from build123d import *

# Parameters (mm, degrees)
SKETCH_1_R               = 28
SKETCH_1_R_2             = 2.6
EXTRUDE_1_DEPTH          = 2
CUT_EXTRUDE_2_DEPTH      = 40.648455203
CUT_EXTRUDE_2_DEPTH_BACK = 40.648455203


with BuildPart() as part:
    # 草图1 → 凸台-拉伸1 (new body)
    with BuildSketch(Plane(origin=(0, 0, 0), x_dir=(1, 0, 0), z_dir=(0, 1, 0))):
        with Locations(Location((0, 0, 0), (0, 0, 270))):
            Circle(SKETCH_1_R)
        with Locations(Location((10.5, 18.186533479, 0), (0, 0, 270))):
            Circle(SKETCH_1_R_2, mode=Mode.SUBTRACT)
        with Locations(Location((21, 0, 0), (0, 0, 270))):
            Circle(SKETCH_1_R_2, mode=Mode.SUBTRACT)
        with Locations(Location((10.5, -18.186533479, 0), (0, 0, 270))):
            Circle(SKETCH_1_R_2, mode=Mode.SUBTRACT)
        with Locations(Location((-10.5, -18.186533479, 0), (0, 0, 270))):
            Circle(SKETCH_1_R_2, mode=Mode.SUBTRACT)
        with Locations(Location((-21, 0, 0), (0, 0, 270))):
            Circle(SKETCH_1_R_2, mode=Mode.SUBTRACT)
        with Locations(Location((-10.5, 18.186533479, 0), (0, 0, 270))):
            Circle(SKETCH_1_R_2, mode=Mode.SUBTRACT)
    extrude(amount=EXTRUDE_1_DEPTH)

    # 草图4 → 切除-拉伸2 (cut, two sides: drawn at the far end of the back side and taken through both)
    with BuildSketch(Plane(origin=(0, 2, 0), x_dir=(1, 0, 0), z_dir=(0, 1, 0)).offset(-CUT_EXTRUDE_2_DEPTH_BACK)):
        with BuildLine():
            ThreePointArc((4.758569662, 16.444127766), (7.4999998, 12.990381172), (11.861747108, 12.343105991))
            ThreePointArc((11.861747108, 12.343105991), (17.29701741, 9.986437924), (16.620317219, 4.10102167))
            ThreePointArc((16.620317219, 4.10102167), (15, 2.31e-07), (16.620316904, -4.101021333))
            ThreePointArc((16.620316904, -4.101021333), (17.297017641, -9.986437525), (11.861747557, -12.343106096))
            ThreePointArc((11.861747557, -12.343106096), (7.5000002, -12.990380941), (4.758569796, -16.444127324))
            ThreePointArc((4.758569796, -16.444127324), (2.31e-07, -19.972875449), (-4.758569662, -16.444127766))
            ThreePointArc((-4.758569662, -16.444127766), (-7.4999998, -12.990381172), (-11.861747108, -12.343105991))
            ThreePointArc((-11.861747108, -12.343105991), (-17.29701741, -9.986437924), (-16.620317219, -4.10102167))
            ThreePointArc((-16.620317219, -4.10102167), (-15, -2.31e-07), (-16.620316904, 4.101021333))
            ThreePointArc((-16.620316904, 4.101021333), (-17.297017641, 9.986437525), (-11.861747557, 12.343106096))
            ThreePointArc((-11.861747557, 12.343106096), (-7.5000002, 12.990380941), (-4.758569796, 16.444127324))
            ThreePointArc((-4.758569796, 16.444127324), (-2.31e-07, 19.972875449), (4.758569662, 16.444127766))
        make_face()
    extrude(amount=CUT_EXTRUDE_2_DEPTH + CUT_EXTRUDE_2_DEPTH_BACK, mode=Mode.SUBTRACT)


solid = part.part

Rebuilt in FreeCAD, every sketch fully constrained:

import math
import FreeCAD as App
import Part
import Sketcher
Q = App.Units.Quantity

doc = App.newDocument("Part")
body = doc.addObject("PartDesign::Body", "Body")

sketch1 = body.newObject("Sketcher::SketchObject", "Sketch")
sketch1.AttachmentSupport = (doc.getObject("XZ_Plane"), [""])
sketch1.MapMode = "FlatFace"
sketch1.addGeometry([
    Part.Circle(App.Vector(0, 0, 0), App.Vector(0, 0, 1), 28),
    Part.Circle(App.Vector(-10.5, -18.2, 0), App.Vector(0, 0, 1), 2.6),
    Part.Circle(App.Vector(-21, 0, 0), App.Vector(0, 0, 1), 2.6),
    Part.Circle(App.Vector(-10.5, 18.2, 0), App.Vector(0, 0, 1), 2.6),
    Part.Circle(App.Vector(10.5, -18.2, 0), App.Vector(0, 0, 1), 2.6),
    Part.Circle(App.Vector(21, 0, 0), App.Vector(0, 0, 1), 2.6),
    Part.Circle(App.Vector(10.5, 18.2, 0), App.Vector(0, 0, 1), 2.6),
], False)
sketch1.addConstraint([
    Sketcher.Constraint("Coincident", 0, 3, -1, 1),
    Sketcher.Constraint("Equal", 1, 2),
    Sketcher.Constraint("Equal", 2, 3),
    Sketcher.Constraint("Equal", 3, 4),
    Sketcher.Constraint("Equal", 4, 5),
    Sketcher.Constraint("Equal", 5, 6),
    Sketcher.Constraint("Symmetric", 3, 3, 4, 3, -1, 1),
    Sketcher.Constraint("Symmetric", 2, 3, 5, 3, -1, 1),
    Sketcher.Constraint("Symmetric", 1, 3, 6, 3, -1, 1),
    Sketcher.Constraint("Symmetric", 1, 3, 4, 3, -2),
    Sketcher.Constraint("PointOnObject", 2, 3, -1),
    Sketcher.Constraint("Diameter", 0, Q("56 mm")),
    Sketcher.Constraint("Diameter", 1, Q("5.2 mm")),
    Sketcher.Constraint("DistanceX", 2, 3, -1, 1, Q("21 mm")),
    Sketcher.Constraint("DistanceX", 1, 3, 4, 3, Q("21 mm")),
    Sketcher.Constraint("DistanceY", 1, 3, -1, 1, Q("18.186533 mm")),
])
pad1 = body.newObject("PartDesign::Pad", "Pad")
pad1.Profile = sketch1
pad1.Length = 2
pad1.Reversed = True

sketch2 = body.newObject("Sketcher::SketchObject", "Sketch001")
sketch2.AttachmentSupport = (doc.getObject("XZ_Plane"), [""])
sketch2.MapMode = "FlatFace"
sketch2.AttachmentOffset = App.Placement(App.Vector(0, 0, -2), App.Rotation())
sketch2.addGeometry([
    Part.ArcOfCircle(Part.Circle(App.Vector(10.5, -18.2, 0), App.Vector(0, 0, 1), 6), math.radians(77), math.radians(163)),
    Part.ArcOfCircle(Part.Circle(App.Vector(0, -15, 0), App.Vector(0, 0, 1), 5), math.radians(-163), math.radians(-17)),
    Part.ArcOfCircle(Part.Circle(App.Vector(-10.5, -18.2, 0), App.Vector(0, 0, 1), 6), math.radians(17), math.radians(103)),
    Part.ArcOfCircle(Part.Circle(App.Vector(-13, -7.5, 0), App.Vector(0, 0, 1), 5), math.radians(137), math.radians(283)),
    Part.ArcOfCircle(Part.Circle(App.Vector(-21, 0, 0), App.Vector(0, 0, 1), 6), math.radians(-43), math.radians(43)),
    Part.ArcOfCircle(Part.Circle(App.Vector(-13, 7.5, 0), App.Vector(0, 0, 1), 5), math.radians(77), math.radians(223)),
    Part.ArcOfCircle(Part.Circle(App.Vector(-10.5, 18.2, 0), App.Vector(0, 0, 1), 6), math.radians(-103), math.radians(-17)),
    Part.ArcOfCircle(Part.Circle(App.Vector(0, 15, 0), App.Vector(0, 0, 1), 5), math.radians(17), math.radians(163)),
    Part.ArcOfCircle(Part.Circle(App.Vector(10.5, 18.2, 0), App.Vector(0, 0, 1), 6), math.radians(-163), math.radians(-77)),
    Part.ArcOfCircle(Part.Circle(App.Vector(13, 7.5, 0), App.Vector(0, 0, 1), 5), math.radians(-43), math.radians(103)),
    Part.ArcOfCircle(Part.Circle(App.Vector(21, 0, 0), App.Vector(0, 0, 1), 6), math.radians(137), math.radians(223)),
    Part.ArcOfCircle(Part.Circle(App.Vector(13, -7.5, 0), App.Vector(0, 0, 1), 5), math.radians(-103), math.radians(43)),
], False)
sketch2.addConstraint([
    Sketcher.Constraint("Tangent", 0, 2, 1, 2),
    Sketcher.Constraint("Tangent", 1, 1, 2, 1),
    Sketcher.Constraint("Tangent", 2, 2, 3, 2),
    Sketcher.Constraint("Tangent", 3, 1, 4, 1),
    Sketcher.Constraint("Tangent", 4, 2, 5, 2),
    Sketcher.Constraint("Tangent", 5, 1, 6, 1),
    Sketcher.Constraint("Tangent", 6, 2, 7, 2),
    Sketcher.Constraint("Tangent", 7, 1, 8, 1),
    Sketcher.Constraint("Tangent", 8, 2, 9, 2),
    Sketcher.Constraint("Tangent", 9, 1, 10, 1),
    Sketcher.Constraint("Tangent", 10, 2, 11, 2),
    Sketcher.Constraint("Tangent", 11, 1, 0, 1),
    Sketcher.Constraint("Equal", 0, 2),
    Sketcher.Constraint("Equal", 1, 3),
    Sketcher.Constraint("Equal", 2, 4),
    Sketcher.Constraint("Equal", 3, 5),
    Sketcher.Constraint("Equal", 4, 6),
    Sketcher.Constraint("Equal", 5, 7),
    Sketcher.Constraint("Equal", 6, 8),
    Sketcher.Constraint("Equal", 7, 9),
    Sketcher.Constraint("Equal", 8, 10),
    Sketcher.Constraint("Equal", 9, 11),
    Sketcher.Constraint("Symmetric", 0, 3, 6, 3, -1, 1),
    Sketcher.Constraint("Symmetric", 2, 3, 8, 3, -1, 1),
    Sketcher.Constraint("Symmetric", 4, 3, 10, 3, -1, 1),
    Sketcher.Constraint("Symmetric", 0, 3, 2, 3, -2),
    Sketcher.Constraint("PointOnObject", 4, 3, -1),
    Sketcher.Constraint("Radius", 0, Q("6 mm")),
    Sketcher.Constraint("DistanceY", 1, 3, -1, 1, Q("15 mm")),
    Sketcher.Constraint("DistanceX", 4, 3, -1, 1, Q("21 mm")),
    Sketcher.Constraint("DistanceX", 2, 3, 0, 3, Q("21 mm")),
    Sketcher.Constraint("DistanceY", 3, 3, 5, 3, Q("15 mm")),
])
pocket1 = body.newObject("PartDesign::Pocket", "Pocket")
pocket1.Profile = sketch2
pocket1.Type = "ThroughAll"
pocket1.Midplane = True

doc.recompute()
